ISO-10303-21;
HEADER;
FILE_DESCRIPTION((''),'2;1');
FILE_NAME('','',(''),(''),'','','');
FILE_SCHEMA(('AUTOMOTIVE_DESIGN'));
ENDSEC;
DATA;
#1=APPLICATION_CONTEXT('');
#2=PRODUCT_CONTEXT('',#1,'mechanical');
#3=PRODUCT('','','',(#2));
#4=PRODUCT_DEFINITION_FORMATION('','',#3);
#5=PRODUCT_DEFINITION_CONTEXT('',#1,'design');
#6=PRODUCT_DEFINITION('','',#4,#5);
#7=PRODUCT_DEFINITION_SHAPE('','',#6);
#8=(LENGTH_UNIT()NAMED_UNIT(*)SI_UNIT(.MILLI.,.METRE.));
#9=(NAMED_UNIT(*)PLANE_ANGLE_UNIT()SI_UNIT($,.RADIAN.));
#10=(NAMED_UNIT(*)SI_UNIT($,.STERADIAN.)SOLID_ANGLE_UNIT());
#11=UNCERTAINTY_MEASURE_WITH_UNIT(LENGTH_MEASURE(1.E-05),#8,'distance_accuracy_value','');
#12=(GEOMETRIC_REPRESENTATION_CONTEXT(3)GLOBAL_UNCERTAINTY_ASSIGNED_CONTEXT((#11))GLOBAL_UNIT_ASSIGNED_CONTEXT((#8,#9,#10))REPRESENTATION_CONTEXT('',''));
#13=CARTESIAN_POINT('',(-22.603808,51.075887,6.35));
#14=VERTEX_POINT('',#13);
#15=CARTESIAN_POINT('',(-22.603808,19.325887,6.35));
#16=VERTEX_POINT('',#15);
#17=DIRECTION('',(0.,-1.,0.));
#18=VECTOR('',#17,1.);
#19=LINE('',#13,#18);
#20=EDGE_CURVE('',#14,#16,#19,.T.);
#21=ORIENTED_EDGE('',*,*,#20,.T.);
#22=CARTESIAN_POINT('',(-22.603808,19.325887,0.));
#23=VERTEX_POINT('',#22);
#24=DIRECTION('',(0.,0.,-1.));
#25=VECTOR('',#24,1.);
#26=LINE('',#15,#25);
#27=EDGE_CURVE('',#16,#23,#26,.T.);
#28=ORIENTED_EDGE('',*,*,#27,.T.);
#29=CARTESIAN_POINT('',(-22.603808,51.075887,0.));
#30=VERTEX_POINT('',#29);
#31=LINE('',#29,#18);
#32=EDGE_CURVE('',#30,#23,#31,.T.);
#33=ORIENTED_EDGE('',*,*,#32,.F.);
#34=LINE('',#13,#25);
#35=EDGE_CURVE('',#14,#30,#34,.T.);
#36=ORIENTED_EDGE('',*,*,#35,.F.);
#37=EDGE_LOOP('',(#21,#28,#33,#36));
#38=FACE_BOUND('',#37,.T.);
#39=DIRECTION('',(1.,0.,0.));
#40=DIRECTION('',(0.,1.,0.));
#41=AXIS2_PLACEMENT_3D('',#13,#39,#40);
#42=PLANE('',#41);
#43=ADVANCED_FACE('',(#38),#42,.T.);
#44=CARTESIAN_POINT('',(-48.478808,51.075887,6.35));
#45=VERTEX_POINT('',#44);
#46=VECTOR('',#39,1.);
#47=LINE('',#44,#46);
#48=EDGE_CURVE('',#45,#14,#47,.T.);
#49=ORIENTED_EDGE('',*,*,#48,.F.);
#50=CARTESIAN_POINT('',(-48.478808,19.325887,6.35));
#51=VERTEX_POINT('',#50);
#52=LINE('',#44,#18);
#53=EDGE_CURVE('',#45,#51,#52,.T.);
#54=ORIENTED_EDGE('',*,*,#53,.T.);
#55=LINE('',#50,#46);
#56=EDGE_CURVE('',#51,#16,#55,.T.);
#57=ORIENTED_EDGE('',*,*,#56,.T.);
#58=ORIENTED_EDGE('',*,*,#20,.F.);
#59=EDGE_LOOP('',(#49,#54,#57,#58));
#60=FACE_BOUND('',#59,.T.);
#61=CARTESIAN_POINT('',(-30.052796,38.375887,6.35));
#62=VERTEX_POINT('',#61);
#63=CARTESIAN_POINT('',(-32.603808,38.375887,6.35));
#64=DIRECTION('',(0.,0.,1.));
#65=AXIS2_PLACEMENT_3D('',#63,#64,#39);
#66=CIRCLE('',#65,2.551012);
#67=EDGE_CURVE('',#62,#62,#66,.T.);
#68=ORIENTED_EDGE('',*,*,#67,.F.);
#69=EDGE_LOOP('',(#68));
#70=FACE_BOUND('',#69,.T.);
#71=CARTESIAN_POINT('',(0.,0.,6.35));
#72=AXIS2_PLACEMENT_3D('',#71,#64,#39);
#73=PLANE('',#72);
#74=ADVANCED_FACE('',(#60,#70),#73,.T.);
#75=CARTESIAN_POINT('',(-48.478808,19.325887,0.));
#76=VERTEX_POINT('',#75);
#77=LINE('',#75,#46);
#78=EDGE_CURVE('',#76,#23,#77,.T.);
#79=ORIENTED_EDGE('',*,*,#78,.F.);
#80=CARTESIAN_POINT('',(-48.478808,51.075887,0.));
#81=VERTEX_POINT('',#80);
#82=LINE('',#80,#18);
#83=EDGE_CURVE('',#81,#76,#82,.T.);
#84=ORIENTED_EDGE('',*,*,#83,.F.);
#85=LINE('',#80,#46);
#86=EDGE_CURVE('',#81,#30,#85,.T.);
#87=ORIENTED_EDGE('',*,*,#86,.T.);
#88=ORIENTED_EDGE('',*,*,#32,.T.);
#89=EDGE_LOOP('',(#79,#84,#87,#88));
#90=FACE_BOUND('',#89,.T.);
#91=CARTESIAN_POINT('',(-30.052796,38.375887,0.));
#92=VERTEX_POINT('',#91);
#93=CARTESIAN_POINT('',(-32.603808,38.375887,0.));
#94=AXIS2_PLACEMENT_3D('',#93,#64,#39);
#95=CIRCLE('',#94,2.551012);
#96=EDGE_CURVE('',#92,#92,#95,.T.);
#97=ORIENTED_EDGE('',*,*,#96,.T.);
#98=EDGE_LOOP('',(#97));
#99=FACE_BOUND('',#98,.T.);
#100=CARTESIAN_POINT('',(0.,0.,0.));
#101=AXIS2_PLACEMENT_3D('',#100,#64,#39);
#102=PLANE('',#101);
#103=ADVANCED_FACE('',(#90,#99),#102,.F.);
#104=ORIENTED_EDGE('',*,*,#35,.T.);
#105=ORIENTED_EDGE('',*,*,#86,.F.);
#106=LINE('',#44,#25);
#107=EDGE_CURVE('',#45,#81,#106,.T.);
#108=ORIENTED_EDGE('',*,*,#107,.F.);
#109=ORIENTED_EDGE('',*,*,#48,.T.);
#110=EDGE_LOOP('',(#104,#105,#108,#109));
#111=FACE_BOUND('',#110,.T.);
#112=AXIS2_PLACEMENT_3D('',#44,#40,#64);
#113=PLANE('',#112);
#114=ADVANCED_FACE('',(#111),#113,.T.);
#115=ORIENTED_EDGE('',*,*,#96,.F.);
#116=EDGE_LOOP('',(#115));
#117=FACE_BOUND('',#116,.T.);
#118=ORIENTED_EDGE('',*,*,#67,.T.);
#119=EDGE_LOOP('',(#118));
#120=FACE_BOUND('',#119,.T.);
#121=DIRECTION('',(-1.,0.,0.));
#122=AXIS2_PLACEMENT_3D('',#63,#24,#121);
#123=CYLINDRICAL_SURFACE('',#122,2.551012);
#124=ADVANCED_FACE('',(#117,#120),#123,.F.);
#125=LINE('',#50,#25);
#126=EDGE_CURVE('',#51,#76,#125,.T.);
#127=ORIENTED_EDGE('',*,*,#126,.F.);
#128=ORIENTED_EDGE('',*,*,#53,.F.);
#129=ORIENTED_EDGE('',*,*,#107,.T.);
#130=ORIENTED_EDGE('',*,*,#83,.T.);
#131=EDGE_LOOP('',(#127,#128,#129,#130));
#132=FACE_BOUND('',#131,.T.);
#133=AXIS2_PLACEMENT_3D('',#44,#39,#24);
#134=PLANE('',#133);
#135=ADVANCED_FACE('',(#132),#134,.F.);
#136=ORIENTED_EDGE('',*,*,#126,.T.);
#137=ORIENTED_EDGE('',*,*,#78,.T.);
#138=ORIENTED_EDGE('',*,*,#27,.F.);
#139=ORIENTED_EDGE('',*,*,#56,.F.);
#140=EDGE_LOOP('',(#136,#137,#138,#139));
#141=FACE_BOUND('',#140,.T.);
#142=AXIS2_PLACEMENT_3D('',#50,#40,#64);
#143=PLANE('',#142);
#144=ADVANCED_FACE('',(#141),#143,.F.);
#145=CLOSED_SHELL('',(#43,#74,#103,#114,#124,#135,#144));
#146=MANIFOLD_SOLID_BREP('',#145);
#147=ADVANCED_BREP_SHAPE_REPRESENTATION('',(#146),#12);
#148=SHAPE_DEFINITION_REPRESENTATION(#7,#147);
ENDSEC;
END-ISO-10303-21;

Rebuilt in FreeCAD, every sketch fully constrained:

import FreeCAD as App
import Part
import Sketcher
Q = App.Units.Quantity

doc = App.newDocument("Part")
params = doc.addObject("Spreadsheet::Sheet", "Params")
for row, (alias, value) in enumerate([
    ("sketch1_height", "1.25 in"),
    ("pad1_length", "0.25 in"),
    ("sketch2_height", "1.25 in"),
], start=1):
    params.set(f"A{row}", alias)
    params.set(f"B{row}", "=" + value)
    params.setAlias(f"B{row}", alias)

body = doc.addObject("PartDesign::Body", "Body")

# Sketch on XY plane
sketch1 = doc.addObject("Sketcher::SketchObject", "Sketch")
body.addObject(sketch1)
sketch1.AttachmentSupport = (doc.XY_Plane, [""])
sketch1.MapMode = "FlatFace"
sketch1.addGeometry(Part.LineSegment(App.Vector(-48.478808, 51.075887, 0), App.Vector(-48.478808, 19.325887, 0)), False)
sketch1.addGeometry(Part.LineSegment(App.Vector(-48.478808, 19.325887, 0), App.Vector(-22.603808, 19.325887, 0)), False)
sketch1.addGeometry(Part.LineSegment(App.Vector(-22.603808, 19.325887, 0), App.Vector(-22.603808, 51.075887, 0)), False)
sketch1.addGeometry(Part.LineSegment(App.Vector(-22.603808, 51.075887, 0), App.Vector(-48.478808, 51.075887, 0)), False)
sketch1.addConstraint(Sketcher.Constraint("Coincident", 0, 2, 1, 1))
sketch1.addConstraint(Sketcher.Constraint("Coincident", 1, 2, 2, 1))
sketch1.addConstraint(Sketcher.Constraint("Coincident", 2, 2, 3, 1))
sketch1.addConstraint(Sketcher.Constraint("Coincident", 3, 2, 0, 1))
sketch1.addConstraint(Sketcher.Constraint("Vertical", 0))
sketch1.addConstraint(Sketcher.Constraint("Horizontal", 1))
sketch1.addConstraint(Sketcher.Constraint("Vertical", 2))
sketch1.addConstraint(Sketcher.Constraint("Horizontal", 3))
sketch1.addConstraint(Sketcher.Constraint("DistanceY", 0, 2, 0, 1, Q("1.25 in")))
sketch1.addConstraint(Sketcher.Constraint("DistanceX", 1, 1, 1, 2, Q("25.875 mm")))
sketch1.addConstraint(Sketcher.Constraint("DistanceX", 0, 2, -1, 1, Q("48.478808 mm")))
sketch1.addConstraint(Sketcher.Constraint("DistanceY", -1, 1, 0, 2, Q("19.325887 mm")))
sketch1.setExpression("Constraints[8]", "Params.sketch1_height")
pad1 = doc.addObject("PartDesign::Pad", "Pad")
body.addObject(pad1)
pad1.Profile = sketch1
pad1.setExpression("Length", "Params.pad1_length")

# Sketch on XY plane
sketch2 = doc.addObject("Sketcher::SketchObject", "Sketch001")
body.addObject(sketch2)
sketch2.AttachmentSupport = (doc.XY_Plane, [""])
sketch2.MapMode = "FlatFace"
sketch2.addGeometry(Part.LineSegment(App.Vector(-53.624, 56.221, 0), App.Vector(-53.624, 14.181, 0)), False)
sketch2.addGeometry(Part.LineSegment(App.Vector(-53.624, 14.181, 0), App.Vector(-17.459, 14.181, 0)), False)
sketch2.addGeometry(Part.LineSegment(App.Vector(-17.459, 14.181, 0), App.Vector(-17.459, 56.221, 0)), False)
sketch2.addGeometry(Part.LineSegment(App.Vector(-17.459, 56.221, 0), App.Vector(-53.624, 56.221, 0)), False)
sketch2.addGeometry(Part.LineSegment(App.Vector(-22.603808, 19.325887, 0), App.Vector(-48.478808, 19.325887, 0)), False)
sketch2.addGeometry(Part.LineSegment(App.Vector(-48.478808, 19.325887, 0), App.Vector(-48.478808, 51.075887, 0)), False)
sketch2.addGeometry(Part.LineSegment(App.Vector(-48.478808, 51.075887, 0), App.Vector(-22.603808, 51.075887, 0)), False)
sketch2.addGeometry(Part.LineSegment(App.Vector(-22.603808, 51.075887, 0), App.Vector(-22.603808, 19.325887, 0)), False)
sketch2.addGeometry(Part.Circle(App.Vector(-32.603808, 38.375887, 0), App.Vector(0, 0, 1), 2.551012), False)
sketch2.addConstraint(Sketcher.Constraint("Coincident", 0, 2, 1, 1))
sketch2.addConstraint(Sketcher.Constraint("Coincident", 1, 2, 2, 1))
sketch2.addConstraint(Sketcher.Constraint("Coincident", 2, 2, 3, 1))
sketch2.addConstraint(Sketcher.Constraint("Coincident", 3, 2, 0, 1))
sketch2.addConstraint(Sketcher.Constraint("Coincident", 4, 2, 5, 1))
sketch2.addConstraint(Sketcher.Constraint("Coincident", 5, 2, 6, 1))
sketch2.addConstraint(Sketcher.Constraint("Coincident", 6, 2, 7, 1))
sketch2.addConstraint(Sketcher.Constraint("Coincident", 7, 2, 4, 1))
sketch2.addConstraint(Sketcher.Constraint("Vertical", 0))
sketch2.addConstraint(Sketcher.Constraint("Horizontal", 1))
sketch2.addConstraint(Sketcher.Constraint("Vertical", 2))
sketch2.addConstraint(Sketcher.Constraint("Horizontal", 3))
sketch2.addConstraint(Sketcher.Constraint("Horizontal", 4))
sketch2.addConstraint(Sketcher.Constraint("Vertical", 5))
sketch2.addConstraint(Sketcher.Constraint("Horizontal", 6))
sketch2.addConstraint(Sketcher.Constraint("Vertical", 7))
sketch2.addConstraint(Sketcher.Constraint("DistanceY", 5, 1, 5, 2, Q("1.25 in")))
sketch2.addConstraint(Sketcher.Constraint("DistanceY", 8, 3, 5, 2, Q("0.5 in")))
sketch2.addConstraint(Sketcher.Constraint("DistanceX", 4, 2, 8, 3, Q("0.625 in")))
sketch2.addConstraint(Sketcher.Constraint("Diameter", 8, Q("5.102024 mm")))
sketch2.addConstraint(Sketcher.Constraint("DistanceX", 1, 1, 1, 2, Q("36.165 mm")))
sketch2.addConstraint(Sketcher.Constraint("DistanceX", 4, 2, 4, 1, Q("25.875 mm")))
sketch2.addConstraint(Sketcher.Constraint("DistanceY", 0, 2, 0, 1, Q("42.04 mm")))
sketch2.addConstraint(Sketcher.Constraint("DistanceX", 0, 2, -1, 1, Q("53.624 mm")))
sketch2.addConstraint(Sketcher.Constraint("DistanceY", -1, 1, 0, 2, Q("14.181 mm")))
sketch2.addConstraint(Sketcher.Constraint("DistanceX", 8, 3, -1, 1, Q("32.603808 mm")))
sketch2.addConstraint(Sketcher.Constraint("DistanceY", -1, 1, 8, 3, Q("38.375887 mm")))
sketch2.setExpression("Constraints[16]", "Params.sketch2_height")
pocket1 = doc.addObject("PartDesign::Pocket", "Pocket")
body.addObject(pocket1)
pocket1.Profile = sketch2
pocket1.Type = "ThroughAll"
pocket1.Reversed = True

doc.recompute()
